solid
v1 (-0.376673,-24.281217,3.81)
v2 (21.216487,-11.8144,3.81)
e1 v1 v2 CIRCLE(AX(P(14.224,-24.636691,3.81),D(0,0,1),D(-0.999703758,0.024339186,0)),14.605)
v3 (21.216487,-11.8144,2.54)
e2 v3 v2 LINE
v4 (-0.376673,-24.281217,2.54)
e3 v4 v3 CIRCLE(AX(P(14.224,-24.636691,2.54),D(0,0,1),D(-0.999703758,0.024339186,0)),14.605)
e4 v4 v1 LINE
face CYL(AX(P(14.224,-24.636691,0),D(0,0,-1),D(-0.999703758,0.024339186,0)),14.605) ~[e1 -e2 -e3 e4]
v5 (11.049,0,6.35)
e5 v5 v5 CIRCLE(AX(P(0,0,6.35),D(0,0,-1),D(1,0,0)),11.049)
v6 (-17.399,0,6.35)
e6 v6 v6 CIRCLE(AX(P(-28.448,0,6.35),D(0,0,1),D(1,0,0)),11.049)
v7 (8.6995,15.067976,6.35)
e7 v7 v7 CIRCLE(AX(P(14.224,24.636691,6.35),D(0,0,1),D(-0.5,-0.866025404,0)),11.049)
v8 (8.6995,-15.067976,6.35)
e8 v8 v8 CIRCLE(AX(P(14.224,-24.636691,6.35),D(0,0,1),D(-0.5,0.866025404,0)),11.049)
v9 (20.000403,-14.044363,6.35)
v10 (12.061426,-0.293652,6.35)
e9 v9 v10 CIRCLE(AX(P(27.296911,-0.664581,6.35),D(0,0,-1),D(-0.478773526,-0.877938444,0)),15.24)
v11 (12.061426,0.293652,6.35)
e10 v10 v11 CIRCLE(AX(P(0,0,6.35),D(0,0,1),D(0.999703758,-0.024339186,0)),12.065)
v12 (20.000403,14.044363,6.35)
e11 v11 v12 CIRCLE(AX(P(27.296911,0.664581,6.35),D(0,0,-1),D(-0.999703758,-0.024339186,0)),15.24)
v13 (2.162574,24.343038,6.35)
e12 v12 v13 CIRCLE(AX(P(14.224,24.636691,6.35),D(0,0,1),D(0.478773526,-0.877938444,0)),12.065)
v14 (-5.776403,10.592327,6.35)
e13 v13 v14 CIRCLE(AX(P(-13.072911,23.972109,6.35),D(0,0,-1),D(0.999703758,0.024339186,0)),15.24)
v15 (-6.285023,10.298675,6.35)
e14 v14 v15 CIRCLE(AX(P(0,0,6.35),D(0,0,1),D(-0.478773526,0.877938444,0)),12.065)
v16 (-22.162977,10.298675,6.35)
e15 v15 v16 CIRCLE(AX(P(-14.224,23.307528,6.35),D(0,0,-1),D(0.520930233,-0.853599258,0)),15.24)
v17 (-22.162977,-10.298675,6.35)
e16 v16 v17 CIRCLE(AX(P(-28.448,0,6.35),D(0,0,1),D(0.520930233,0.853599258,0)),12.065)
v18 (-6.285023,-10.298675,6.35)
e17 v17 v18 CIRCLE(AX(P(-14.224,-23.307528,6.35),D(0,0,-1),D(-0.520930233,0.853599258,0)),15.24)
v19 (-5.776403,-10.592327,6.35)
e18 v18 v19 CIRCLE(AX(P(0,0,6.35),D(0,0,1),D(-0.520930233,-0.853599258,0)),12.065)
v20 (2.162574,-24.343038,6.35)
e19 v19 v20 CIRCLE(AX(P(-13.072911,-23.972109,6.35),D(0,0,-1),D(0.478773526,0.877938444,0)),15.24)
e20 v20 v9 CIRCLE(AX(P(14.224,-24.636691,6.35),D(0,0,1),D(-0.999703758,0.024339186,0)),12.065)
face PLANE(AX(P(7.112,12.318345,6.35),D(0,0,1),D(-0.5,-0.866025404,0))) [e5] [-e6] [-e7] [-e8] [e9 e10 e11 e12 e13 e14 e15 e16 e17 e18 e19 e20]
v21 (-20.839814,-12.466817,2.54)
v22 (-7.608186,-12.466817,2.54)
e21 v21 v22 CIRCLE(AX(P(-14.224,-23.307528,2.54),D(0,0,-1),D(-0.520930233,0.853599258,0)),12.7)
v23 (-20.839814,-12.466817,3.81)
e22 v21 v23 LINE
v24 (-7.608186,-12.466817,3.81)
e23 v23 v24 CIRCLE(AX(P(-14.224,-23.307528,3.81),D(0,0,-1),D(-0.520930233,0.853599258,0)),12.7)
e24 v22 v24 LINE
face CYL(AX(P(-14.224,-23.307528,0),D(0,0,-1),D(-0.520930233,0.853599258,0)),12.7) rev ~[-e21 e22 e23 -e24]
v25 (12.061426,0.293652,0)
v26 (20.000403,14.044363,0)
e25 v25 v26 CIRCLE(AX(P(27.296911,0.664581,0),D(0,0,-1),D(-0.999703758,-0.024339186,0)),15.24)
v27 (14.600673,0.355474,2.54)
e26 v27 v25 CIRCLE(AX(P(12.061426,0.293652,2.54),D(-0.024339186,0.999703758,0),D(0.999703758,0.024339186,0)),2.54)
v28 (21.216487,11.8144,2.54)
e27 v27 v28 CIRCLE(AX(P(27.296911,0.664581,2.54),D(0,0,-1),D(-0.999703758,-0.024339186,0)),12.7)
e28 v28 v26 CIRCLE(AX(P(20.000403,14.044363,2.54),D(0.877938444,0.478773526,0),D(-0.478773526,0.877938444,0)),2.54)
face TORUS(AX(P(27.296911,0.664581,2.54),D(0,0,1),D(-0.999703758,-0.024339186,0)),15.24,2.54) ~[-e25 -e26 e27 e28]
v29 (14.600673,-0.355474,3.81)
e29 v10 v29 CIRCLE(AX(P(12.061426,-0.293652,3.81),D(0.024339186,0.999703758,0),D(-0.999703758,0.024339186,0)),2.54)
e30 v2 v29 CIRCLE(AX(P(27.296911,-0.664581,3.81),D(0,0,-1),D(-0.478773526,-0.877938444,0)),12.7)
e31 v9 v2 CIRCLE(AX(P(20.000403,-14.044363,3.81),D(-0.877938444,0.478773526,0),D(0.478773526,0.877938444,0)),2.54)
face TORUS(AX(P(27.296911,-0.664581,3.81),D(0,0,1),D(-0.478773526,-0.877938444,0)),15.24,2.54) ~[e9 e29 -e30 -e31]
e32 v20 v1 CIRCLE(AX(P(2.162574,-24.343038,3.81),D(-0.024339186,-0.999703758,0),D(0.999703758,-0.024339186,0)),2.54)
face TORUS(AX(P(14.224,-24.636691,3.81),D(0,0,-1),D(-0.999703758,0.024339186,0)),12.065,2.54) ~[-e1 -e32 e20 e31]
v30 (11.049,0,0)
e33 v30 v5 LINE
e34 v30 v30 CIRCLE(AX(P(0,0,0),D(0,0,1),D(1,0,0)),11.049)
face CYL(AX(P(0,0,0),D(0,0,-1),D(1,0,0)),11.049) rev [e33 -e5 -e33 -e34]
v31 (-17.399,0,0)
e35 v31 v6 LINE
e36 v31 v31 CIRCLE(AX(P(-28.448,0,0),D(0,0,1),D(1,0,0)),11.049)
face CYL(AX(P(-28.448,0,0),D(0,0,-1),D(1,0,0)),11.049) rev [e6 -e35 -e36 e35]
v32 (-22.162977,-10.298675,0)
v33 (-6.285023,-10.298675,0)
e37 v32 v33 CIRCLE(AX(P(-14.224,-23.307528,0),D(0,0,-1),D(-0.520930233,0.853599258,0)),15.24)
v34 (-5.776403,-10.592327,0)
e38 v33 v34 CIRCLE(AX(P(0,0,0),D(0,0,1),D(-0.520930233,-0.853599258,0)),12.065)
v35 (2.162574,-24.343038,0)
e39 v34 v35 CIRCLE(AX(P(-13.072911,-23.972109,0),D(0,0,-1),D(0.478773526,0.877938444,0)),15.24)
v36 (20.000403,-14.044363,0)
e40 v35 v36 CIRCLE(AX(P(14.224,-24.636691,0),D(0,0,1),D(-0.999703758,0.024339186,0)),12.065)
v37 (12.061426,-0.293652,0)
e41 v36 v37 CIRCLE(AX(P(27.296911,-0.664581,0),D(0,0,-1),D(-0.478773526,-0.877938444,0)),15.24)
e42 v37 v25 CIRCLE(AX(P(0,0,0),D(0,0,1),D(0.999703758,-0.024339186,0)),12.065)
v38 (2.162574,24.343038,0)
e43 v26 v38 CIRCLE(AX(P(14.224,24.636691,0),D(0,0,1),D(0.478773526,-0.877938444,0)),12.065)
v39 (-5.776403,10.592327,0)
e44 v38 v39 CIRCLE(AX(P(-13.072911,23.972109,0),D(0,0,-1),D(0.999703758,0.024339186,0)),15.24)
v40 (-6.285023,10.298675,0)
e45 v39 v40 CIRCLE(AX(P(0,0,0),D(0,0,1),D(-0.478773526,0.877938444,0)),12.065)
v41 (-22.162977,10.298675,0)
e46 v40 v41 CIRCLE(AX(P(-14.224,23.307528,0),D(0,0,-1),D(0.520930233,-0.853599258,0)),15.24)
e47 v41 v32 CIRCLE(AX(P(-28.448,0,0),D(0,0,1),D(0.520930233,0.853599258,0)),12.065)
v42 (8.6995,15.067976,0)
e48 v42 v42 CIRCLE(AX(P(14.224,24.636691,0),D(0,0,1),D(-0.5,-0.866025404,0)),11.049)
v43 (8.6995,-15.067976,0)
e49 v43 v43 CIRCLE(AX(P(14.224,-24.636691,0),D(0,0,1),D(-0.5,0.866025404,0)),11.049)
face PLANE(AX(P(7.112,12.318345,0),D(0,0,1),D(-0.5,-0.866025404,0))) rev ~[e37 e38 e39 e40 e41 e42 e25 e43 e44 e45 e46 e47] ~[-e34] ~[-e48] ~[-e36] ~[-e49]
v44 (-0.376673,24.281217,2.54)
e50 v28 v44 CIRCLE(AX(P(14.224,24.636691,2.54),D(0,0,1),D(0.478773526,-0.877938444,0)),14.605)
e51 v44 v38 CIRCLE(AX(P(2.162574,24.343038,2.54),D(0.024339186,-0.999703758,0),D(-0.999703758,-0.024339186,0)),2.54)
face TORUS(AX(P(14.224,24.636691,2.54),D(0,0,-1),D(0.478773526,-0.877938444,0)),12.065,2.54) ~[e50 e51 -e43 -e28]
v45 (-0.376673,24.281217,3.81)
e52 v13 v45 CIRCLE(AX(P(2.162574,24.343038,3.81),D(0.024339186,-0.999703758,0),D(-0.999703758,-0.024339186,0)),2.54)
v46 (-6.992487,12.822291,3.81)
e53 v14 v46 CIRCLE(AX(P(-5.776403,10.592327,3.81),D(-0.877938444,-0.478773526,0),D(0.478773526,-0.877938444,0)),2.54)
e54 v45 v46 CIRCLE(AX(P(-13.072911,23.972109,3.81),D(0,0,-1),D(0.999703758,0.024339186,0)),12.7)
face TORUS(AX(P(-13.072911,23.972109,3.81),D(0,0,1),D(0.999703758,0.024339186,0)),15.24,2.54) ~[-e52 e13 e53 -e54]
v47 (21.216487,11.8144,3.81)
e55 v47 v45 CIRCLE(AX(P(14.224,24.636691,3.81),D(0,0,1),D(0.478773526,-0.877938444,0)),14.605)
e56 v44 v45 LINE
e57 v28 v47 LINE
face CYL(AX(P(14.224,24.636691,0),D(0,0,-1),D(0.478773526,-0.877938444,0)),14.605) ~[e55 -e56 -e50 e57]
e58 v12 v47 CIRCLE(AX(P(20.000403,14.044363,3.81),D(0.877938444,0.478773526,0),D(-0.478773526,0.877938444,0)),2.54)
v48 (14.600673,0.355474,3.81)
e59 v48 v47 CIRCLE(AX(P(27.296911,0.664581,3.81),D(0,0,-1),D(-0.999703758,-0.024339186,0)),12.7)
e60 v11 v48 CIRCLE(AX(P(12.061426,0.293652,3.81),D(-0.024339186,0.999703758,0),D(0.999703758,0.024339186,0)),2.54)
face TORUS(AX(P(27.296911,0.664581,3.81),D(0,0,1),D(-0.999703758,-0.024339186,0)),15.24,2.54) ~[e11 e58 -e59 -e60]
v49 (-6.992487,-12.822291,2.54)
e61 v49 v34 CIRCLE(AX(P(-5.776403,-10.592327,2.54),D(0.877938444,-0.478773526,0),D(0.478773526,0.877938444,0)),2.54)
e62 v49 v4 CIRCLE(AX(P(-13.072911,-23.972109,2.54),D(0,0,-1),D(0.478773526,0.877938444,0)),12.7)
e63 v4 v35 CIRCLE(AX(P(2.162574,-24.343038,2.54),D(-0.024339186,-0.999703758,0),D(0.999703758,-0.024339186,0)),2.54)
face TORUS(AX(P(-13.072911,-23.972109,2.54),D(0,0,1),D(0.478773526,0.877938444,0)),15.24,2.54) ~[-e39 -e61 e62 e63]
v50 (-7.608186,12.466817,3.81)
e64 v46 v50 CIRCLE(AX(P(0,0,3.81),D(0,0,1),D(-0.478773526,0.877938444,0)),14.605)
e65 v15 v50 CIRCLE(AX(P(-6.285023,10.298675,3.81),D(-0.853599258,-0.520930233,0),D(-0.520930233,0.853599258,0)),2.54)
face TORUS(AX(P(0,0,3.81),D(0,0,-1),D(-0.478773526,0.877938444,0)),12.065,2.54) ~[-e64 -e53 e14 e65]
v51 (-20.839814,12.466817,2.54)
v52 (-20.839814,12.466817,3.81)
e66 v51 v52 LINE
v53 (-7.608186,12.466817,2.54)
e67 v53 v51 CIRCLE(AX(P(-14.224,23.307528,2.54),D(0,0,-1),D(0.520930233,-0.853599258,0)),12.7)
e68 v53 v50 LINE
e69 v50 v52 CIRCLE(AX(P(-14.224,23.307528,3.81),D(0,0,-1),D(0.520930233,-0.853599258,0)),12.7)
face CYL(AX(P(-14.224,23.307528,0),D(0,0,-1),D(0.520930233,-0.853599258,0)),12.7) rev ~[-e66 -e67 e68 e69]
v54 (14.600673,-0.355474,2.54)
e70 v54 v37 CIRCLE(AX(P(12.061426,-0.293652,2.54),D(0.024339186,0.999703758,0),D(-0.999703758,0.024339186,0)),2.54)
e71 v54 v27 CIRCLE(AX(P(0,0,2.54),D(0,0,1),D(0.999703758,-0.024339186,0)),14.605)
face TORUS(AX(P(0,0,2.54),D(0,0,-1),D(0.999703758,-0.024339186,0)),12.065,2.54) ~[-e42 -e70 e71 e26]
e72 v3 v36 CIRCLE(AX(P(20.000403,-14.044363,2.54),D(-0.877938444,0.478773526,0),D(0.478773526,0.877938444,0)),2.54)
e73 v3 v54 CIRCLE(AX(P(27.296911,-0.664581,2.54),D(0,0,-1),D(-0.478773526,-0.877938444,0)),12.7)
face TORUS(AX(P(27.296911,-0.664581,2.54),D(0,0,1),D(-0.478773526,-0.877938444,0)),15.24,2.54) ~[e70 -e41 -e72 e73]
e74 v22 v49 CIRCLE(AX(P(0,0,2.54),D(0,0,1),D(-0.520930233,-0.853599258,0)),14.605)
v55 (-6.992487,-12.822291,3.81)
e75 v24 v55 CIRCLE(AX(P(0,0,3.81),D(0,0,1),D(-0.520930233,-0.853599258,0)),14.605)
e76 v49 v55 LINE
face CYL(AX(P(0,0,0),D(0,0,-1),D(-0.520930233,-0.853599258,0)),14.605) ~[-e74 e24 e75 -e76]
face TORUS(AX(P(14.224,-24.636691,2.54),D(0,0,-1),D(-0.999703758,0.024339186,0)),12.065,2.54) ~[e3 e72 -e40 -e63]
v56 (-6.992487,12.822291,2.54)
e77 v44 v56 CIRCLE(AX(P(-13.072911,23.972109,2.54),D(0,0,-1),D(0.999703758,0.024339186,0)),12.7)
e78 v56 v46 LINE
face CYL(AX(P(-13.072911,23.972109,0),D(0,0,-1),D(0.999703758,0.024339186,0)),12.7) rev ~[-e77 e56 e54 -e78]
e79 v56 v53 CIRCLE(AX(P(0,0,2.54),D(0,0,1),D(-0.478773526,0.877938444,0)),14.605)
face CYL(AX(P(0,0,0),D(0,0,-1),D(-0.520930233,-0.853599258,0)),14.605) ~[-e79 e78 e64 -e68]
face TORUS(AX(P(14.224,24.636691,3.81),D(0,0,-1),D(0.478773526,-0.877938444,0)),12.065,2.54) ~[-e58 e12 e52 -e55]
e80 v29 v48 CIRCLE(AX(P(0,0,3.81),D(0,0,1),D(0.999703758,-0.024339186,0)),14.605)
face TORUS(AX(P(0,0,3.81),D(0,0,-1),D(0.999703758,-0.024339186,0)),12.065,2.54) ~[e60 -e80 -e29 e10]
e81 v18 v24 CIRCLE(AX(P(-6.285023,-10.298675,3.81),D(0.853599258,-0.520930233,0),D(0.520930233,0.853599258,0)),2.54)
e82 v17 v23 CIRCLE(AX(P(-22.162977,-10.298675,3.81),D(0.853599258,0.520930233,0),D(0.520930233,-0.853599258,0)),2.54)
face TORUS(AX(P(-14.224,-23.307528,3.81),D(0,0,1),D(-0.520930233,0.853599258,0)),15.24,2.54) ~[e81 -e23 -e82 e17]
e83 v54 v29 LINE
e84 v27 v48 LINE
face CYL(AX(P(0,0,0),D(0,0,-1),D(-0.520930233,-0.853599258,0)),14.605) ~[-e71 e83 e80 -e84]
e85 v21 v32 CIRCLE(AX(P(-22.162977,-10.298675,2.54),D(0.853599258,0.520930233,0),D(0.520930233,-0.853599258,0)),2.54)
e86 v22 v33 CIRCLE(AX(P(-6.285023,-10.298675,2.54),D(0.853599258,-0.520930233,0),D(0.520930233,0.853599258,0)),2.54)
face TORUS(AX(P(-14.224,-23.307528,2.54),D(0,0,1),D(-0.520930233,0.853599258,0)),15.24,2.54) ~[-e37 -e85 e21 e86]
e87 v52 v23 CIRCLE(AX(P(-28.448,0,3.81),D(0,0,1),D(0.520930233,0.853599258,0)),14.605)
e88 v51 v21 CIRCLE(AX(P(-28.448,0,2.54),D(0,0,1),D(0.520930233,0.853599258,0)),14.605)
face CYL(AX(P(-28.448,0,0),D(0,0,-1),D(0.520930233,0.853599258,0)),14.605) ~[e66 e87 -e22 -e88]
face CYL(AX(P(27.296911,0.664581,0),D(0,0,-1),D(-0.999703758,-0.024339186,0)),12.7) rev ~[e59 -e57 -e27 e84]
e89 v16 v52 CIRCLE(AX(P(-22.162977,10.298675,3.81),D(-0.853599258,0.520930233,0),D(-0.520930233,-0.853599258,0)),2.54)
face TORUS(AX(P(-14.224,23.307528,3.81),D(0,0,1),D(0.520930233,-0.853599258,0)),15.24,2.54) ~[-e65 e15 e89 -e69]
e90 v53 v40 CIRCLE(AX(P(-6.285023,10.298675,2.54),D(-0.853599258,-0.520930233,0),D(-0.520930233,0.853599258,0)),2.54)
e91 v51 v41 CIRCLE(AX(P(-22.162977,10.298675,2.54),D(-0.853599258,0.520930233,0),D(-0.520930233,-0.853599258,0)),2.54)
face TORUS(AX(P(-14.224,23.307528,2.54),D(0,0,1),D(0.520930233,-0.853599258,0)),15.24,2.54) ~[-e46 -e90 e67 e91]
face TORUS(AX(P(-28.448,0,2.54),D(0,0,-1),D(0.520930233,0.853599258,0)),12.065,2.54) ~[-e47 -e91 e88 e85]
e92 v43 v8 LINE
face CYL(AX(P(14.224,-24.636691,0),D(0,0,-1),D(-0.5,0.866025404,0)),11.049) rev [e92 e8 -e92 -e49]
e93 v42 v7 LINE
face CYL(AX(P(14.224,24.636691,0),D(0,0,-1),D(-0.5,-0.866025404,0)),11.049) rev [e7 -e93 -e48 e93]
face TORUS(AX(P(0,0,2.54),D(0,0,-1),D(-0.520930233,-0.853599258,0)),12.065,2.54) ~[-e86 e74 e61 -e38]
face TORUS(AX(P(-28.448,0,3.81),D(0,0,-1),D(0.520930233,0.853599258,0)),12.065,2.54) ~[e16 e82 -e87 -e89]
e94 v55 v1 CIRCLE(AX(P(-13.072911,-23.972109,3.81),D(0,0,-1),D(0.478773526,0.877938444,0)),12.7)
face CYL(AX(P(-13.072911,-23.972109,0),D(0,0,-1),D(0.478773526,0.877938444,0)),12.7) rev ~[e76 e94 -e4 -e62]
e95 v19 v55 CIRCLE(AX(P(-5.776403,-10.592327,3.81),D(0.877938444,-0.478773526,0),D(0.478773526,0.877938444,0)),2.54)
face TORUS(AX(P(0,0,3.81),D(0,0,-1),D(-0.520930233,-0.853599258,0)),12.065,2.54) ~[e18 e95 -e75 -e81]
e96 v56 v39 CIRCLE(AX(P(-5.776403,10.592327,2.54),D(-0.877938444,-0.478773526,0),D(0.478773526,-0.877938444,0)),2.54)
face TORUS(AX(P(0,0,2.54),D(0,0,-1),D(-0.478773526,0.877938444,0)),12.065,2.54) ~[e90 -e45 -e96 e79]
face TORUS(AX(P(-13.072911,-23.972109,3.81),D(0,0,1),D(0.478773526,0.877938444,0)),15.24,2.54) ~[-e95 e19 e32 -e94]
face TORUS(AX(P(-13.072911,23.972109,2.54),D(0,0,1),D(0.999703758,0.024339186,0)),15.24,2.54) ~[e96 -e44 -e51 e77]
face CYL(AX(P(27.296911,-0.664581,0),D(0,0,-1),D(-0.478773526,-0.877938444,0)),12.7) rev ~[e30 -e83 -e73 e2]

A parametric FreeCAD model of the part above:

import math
import FreeCAD as App
import Part
import Sketcher
Q = App.Units.Quantity


def edges_at(feature, points):
    """Names of the edges that pass closest to the given points."""
    edges = feature.Shape.Edges
    near = lambda p: min(range(len(edges)), key=lambda i: edges[i].distToShape(Part.Vertex(*p))[0])
    return sorted({f"Edge{near(p) + 1}" for p in points})

doc = App.newDocument("Part")
body = doc.addObject("PartDesign::Body", "Body")

sketch1 = body.newObject("Sketcher::SketchObject", "Sketch")
sketch1.AttachmentSupport = (doc.getObject("XY_Plane"), [""])
sketch1.MapMode = "FlatFace"
sketch1.addGeometry(Part.ArcOfCircle(Part.Circle(App.Vector(-14, -23, 0), App.Vector(0, 0, 1), 13), math.radians(59), math.radians(121)), False)
sketch1.addGeometry(Part.ArcOfCircle(Part.Circle(App.Vector(0, 0, 0), App.Vector(0, 0, 1), 15), math.radians(-121), math.radians(121)), False)
sketch1.addGeometry(Part.ArcOfCircle(Part.Circle(App.Vector(-14, 23, 0), App.Vector(0, 0, 1), 13), math.radians(-121), math.radians(-59)), False)
sketch1.addGeometry(Part.ArcOfCircle(Part.Circle(App.Vector(-28, 0, 0), App.Vector(0, 0, 1), 15), math.radians(59), math.radians(301)), False)
sketch1.addGeometry(Part.Circle(App.Vector(-28, 0, 0), App.Vector(0, 0, 1), 11), False)
sketch1.addGeometry(Part.Circle(App.Vector(0, 0, 0), App.Vector(0, 0, 1), 11), False)
sketch1.addConstraint(Sketcher.Constraint("Tangent", 0, 1, 1, 1))
sketch1.addConstraint(Sketcher.Constraint("Tangent", 1, 2, 2, 2))
sketch1.addConstraint(Sketcher.Constraint("Tangent", 2, 1, 3, 1))
sketch1.addConstraint(Sketcher.Constraint("Tangent", 3, 2, 0, 2))
sketch1.addConstraint(Sketcher.Constraint("Coincident", 1, 3, -1, 1))
sketch1.addConstraint(Sketcher.Constraint("Coincident", 5, 3, -1, 1))
sketch1.addConstraint(Sketcher.Constraint("Coincident", 4, 3, 3, 3))
sketch1.addConstraint(Sketcher.Constraint("Equal", 0, 2))
sketch1.addConstraint(Sketcher.Constraint("Equal", 1, 3))
sketch1.addConstraint(Sketcher.Constraint("Equal", 4, 5))
sketch1.addConstraint(Sketcher.Constraint("PointOnObject", 3, 3, -1))
sketch1.addConstraint(Sketcher.Constraint("Radius", 0, Q("0.5 in")))
sketch1.addConstraint(Sketcher.Constraint("Diameter", 4, Q("0.87 in")))
sketch1.addConstraint(Sketcher.Constraint("Radius", 1, Q("0.575 in")))
sketch1.addConstraint(Sketcher.Constraint("DistanceX", 0, 3, -1, 1, Q("0.56 in")))
pad1 = body.newObject("PartDesign::Pad", "Pad")
pad1.Profile = sketch1
pad1.Length = Q("0.25 in")
body2 = doc.addObject("PartDesign::Body", "Body001")
doc.recompute()

body2.BaseFeature = body
doc.recompute()

body3 = doc.addObject("PartDesign::Body", "Body002")
body3.BaseFeature = body
body3.Placement = App.Placement(App.Vector(0, 0, 0), App.Rotation(App.Vector(0, 0, 1), 120))
boolean = body2.newObject("PartDesign::Boolean", "Boolean")
boolean.Type = "Fuse"
boolean.addObjects([body3])
doc.recompute()

body.Placement = App.Placement(App.Vector(0, 0, 0), App.Rotation(App.Vector(0, 0, 1), 240))
boolean2 = body2.newObject("PartDesign::Boolean", "Boolean001")
boolean2.Type = "Fuse"
boolean2.addObjects([body])
doc.recompute()

fillet = body2.newObject("PartDesign::Fillet", "Fillet")
fillet.Base = (boolean2, edges_at(boolean2, [(-2.074, -17.622, 6.35), (-2.074, -17.622, 0)]))
fillet.Radius = Q("0.1 in")

doc.recompute()
